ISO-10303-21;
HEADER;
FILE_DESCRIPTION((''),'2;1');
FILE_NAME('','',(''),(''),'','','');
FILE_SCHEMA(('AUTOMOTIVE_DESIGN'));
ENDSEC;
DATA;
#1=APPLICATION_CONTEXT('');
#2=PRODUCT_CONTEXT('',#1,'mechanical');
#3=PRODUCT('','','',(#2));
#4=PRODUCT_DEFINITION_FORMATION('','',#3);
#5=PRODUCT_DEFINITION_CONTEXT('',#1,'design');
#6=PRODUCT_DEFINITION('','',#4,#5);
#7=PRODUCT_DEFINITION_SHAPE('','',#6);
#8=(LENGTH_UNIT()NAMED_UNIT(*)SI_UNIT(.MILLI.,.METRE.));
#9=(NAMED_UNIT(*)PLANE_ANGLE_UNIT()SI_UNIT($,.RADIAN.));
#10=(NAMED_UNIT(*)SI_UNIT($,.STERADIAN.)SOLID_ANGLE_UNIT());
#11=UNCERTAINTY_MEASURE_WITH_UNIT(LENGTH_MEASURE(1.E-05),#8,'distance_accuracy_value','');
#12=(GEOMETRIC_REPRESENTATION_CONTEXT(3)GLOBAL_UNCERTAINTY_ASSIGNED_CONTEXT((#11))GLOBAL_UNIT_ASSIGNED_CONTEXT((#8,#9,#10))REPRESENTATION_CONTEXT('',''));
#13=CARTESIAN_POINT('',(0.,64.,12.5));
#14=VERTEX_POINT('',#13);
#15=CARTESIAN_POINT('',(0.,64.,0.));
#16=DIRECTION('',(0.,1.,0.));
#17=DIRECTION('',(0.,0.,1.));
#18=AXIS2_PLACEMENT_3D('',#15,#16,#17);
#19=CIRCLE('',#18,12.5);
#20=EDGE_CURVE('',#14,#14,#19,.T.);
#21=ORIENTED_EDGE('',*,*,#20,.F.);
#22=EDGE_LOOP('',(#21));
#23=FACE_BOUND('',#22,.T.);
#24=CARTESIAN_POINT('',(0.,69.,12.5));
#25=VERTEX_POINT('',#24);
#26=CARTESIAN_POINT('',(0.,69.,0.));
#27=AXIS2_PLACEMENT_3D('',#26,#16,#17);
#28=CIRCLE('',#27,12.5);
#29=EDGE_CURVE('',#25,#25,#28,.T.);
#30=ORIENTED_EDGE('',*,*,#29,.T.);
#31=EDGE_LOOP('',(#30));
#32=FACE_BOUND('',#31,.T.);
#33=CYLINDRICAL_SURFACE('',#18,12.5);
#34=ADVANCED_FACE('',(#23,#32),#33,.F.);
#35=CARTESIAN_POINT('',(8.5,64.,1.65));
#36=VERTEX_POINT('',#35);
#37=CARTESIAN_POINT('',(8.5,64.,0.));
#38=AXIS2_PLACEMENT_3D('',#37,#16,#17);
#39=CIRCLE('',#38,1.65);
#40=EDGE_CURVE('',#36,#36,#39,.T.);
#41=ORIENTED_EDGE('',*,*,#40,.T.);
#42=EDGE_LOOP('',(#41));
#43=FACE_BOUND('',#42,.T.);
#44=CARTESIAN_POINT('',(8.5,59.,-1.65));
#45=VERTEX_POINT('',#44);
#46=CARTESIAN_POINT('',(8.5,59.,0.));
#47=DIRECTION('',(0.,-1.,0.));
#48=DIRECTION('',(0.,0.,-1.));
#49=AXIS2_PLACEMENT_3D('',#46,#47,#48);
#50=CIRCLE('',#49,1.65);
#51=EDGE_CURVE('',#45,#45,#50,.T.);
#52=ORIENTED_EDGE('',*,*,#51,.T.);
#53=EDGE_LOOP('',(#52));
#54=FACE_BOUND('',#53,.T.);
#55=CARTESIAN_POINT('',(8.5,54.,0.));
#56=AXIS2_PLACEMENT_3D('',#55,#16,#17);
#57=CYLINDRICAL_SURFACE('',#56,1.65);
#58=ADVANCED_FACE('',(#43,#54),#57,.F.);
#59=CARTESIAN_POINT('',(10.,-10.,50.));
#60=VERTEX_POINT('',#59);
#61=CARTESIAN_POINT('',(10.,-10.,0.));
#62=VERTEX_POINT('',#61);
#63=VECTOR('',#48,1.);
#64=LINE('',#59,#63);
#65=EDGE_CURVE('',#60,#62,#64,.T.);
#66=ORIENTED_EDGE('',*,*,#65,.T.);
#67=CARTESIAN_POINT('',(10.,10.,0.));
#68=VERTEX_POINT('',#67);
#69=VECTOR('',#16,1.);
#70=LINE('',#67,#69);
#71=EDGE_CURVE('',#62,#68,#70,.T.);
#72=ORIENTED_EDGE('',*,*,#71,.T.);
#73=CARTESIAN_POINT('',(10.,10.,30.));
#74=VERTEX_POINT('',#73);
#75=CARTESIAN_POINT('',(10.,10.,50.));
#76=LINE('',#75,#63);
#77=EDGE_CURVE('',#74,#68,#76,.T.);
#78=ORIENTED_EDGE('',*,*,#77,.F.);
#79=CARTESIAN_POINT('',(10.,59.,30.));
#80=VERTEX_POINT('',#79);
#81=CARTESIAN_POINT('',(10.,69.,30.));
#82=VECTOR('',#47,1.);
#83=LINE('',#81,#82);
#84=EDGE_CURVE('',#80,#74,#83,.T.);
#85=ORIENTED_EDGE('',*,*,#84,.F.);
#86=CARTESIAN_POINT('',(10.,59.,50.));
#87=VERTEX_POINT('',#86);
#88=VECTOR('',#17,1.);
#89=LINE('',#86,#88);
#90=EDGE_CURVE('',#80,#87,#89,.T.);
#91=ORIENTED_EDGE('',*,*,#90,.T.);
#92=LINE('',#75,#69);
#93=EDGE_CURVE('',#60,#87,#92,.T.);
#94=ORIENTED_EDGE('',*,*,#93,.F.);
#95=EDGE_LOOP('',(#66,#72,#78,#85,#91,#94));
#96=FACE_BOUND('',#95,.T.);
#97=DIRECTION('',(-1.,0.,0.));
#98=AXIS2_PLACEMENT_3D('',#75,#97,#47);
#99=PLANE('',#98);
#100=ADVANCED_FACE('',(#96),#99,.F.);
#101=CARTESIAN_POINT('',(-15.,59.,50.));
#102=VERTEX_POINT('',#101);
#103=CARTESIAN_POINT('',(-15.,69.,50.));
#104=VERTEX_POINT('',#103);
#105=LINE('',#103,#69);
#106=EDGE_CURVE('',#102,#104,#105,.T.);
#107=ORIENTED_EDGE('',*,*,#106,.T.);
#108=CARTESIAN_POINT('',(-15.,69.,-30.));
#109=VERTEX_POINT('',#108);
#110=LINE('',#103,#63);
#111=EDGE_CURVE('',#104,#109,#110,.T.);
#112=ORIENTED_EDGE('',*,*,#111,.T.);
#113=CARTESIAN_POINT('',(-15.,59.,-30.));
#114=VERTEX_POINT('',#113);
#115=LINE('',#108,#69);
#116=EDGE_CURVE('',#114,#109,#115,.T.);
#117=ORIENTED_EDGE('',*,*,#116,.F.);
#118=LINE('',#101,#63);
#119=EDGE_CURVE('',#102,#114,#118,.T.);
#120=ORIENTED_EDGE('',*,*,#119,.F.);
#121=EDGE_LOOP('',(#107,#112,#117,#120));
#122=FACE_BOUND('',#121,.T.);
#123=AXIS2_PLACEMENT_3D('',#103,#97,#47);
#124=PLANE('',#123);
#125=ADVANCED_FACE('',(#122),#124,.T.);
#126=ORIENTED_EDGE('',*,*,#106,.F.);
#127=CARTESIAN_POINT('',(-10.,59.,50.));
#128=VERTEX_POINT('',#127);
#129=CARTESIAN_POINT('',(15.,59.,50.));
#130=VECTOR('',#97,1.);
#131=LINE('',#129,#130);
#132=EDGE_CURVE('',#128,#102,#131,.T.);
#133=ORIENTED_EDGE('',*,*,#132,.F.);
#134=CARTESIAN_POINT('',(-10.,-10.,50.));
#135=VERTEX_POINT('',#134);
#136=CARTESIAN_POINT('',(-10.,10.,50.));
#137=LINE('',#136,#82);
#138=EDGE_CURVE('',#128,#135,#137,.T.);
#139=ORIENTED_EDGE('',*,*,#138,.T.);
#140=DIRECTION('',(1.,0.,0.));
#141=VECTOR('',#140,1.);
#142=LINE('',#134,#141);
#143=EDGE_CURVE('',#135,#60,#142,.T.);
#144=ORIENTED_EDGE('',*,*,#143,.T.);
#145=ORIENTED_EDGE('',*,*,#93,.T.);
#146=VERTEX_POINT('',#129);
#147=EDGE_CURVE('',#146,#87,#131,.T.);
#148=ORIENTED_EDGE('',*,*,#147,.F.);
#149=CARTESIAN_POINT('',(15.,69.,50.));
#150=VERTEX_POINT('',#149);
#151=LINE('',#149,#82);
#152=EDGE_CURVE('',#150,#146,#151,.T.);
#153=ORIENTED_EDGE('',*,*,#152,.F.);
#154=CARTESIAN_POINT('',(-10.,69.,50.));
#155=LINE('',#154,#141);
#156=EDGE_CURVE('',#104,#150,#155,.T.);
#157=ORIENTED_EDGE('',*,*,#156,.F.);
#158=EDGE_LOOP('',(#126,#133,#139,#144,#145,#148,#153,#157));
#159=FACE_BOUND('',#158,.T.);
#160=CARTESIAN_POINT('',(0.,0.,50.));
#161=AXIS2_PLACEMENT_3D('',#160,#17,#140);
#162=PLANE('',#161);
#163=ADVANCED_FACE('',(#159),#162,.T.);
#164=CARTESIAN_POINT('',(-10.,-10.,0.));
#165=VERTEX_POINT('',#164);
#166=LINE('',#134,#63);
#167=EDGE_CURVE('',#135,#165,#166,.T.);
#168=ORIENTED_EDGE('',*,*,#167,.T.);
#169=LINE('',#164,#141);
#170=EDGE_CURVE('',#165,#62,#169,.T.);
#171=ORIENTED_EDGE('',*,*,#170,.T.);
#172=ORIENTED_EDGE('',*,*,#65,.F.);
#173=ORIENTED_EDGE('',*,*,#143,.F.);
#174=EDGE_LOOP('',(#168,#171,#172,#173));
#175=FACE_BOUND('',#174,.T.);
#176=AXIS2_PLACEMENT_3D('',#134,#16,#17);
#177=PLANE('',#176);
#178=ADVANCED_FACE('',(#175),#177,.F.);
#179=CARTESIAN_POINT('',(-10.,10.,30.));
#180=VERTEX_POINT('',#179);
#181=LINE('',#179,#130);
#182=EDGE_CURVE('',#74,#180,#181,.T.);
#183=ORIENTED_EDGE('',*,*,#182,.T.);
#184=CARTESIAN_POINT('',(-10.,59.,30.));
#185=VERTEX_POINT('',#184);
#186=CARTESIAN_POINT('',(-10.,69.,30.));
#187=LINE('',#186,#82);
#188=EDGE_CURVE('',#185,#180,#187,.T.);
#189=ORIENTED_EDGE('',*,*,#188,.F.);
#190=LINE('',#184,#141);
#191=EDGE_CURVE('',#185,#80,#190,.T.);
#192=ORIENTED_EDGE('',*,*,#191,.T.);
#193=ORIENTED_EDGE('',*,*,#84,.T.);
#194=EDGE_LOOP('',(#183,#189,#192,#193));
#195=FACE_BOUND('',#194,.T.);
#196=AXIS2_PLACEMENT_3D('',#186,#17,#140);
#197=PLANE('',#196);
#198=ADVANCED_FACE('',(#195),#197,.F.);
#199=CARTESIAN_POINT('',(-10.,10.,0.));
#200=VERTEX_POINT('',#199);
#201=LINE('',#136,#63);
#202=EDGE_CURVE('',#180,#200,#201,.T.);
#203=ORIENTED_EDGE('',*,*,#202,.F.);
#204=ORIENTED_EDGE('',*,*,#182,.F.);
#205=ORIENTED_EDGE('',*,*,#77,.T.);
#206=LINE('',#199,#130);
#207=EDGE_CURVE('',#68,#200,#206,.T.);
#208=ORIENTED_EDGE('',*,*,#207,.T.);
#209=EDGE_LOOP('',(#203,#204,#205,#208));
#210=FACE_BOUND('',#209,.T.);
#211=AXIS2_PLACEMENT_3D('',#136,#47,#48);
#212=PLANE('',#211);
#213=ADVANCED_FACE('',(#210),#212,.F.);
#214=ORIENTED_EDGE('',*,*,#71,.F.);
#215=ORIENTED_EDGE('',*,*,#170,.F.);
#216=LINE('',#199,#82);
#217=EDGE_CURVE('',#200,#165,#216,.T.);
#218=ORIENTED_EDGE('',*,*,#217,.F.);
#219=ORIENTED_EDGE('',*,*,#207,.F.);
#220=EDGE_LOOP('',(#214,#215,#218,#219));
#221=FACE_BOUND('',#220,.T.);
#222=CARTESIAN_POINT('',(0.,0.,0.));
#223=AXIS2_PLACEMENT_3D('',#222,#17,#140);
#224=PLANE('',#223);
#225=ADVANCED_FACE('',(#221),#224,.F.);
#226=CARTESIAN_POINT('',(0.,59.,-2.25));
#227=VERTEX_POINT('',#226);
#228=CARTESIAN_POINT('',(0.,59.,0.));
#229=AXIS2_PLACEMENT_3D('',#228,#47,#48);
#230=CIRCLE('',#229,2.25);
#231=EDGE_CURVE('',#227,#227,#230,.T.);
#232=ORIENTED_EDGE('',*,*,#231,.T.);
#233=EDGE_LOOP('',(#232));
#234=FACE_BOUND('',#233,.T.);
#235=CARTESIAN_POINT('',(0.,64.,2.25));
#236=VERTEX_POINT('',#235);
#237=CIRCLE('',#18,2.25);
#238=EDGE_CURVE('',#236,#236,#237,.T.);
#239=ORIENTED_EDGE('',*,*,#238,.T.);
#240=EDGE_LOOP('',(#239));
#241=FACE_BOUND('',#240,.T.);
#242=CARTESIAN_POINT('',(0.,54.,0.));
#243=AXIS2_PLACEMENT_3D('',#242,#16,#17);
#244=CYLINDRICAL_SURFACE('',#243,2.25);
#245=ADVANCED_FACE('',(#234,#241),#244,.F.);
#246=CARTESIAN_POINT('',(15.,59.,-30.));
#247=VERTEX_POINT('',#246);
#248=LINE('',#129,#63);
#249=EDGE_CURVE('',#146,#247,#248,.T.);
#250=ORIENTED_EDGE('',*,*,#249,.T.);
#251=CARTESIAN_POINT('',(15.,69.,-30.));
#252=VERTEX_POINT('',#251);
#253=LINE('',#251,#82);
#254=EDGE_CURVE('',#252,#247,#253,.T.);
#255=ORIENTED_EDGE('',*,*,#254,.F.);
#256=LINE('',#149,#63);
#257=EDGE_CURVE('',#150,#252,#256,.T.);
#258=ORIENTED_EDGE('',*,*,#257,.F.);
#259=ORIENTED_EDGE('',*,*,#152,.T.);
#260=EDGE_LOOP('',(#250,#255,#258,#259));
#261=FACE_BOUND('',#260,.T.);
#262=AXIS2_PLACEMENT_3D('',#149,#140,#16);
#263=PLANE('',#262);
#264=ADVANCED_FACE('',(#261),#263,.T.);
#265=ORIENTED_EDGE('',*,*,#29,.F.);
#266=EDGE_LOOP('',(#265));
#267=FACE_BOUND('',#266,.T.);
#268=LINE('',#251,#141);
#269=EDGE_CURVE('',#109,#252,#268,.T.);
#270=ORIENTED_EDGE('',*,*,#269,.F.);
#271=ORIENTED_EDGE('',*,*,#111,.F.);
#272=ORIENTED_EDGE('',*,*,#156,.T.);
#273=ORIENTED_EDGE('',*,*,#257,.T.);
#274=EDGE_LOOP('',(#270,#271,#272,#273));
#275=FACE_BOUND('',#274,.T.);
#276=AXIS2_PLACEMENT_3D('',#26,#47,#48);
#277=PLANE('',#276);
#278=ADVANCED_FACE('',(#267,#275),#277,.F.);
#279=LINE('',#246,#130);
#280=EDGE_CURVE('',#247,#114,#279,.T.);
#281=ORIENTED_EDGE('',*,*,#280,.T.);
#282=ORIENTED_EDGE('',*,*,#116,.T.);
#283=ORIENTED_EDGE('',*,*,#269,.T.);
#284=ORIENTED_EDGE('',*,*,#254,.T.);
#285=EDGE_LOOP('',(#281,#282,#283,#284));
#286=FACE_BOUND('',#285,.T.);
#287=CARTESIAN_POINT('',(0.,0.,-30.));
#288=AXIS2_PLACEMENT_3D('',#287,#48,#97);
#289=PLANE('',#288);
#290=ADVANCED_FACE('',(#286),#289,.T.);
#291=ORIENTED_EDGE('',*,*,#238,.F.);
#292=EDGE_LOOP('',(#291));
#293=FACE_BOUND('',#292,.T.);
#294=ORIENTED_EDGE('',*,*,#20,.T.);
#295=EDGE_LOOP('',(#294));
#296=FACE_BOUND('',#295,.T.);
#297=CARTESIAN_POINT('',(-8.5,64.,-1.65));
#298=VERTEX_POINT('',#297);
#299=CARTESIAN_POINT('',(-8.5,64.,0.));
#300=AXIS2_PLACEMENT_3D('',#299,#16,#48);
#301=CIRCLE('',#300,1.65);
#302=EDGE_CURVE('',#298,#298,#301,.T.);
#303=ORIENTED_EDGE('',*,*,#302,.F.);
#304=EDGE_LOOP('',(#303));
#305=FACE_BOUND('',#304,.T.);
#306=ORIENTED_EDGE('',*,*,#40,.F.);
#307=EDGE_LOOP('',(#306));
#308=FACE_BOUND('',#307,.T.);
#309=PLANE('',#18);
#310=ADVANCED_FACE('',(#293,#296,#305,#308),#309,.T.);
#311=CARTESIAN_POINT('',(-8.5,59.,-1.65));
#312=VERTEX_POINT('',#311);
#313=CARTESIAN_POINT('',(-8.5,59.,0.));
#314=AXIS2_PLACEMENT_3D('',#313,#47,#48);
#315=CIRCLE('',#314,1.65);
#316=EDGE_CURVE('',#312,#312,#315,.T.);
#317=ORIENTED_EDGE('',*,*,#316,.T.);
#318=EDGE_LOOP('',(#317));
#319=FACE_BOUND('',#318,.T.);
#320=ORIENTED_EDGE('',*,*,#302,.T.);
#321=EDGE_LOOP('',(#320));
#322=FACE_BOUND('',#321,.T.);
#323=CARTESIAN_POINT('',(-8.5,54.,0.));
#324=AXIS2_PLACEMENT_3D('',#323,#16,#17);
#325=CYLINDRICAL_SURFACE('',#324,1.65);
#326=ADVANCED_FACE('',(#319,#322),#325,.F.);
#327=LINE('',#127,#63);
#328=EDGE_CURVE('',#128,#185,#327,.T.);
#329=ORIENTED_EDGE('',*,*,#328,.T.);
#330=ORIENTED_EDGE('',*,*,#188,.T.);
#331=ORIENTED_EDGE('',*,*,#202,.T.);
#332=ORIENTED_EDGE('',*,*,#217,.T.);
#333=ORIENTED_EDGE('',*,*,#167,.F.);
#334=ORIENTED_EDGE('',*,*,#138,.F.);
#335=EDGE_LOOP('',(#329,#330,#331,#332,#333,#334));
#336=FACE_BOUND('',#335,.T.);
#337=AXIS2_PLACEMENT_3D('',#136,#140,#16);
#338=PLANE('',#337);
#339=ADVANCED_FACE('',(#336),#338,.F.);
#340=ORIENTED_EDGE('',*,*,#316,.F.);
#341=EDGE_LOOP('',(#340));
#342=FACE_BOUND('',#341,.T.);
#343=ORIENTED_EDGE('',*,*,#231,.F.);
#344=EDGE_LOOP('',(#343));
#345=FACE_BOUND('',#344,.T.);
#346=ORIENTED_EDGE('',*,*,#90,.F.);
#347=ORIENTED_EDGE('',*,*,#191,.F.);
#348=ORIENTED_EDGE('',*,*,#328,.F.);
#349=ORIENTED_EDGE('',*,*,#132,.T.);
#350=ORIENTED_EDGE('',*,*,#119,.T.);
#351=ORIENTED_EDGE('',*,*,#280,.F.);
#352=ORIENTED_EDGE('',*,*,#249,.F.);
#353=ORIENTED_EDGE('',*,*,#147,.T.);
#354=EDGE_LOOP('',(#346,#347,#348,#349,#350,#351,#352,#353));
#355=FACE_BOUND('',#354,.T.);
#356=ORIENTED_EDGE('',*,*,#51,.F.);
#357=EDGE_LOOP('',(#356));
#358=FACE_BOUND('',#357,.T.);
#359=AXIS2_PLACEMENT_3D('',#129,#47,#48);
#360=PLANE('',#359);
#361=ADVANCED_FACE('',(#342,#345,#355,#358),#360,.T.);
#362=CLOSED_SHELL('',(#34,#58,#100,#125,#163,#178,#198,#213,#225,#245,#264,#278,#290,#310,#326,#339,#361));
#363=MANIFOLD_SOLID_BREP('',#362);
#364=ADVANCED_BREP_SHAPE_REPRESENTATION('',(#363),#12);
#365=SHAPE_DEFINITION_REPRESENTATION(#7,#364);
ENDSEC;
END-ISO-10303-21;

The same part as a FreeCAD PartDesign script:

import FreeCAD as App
import Part
import Sketcher

doc = App.newDocument("Part")
body = doc.addObject("PartDesign::Body", "Body")

# Sketch on XY plane
sketch1 = body.newObject("Sketcher::SketchObject", "Sketch")
sketch1.AttachmentSupport = (doc.getObject("XY_Plane"), [""])
sketch1.MapMode = "FlatFace"
sketch1.addGeometry([
    Part.LineSegment(App.Vector(-10, 10, 0), App.Vector(-10, -10, 0)),
    Part.LineSegment(App.Vector(-10, -10, 0), App.Vector(10, -10, 0)),
    Part.LineSegment(App.Vector(10, -10, 0), App.Vector(10, 10, 0)),
    Part.LineSegment(App.Vector(10, 10, 0), App.Vector(-10, 10, 0)),
], False)
sketch1.addConstraint([
    Sketcher.Constraint("Coincident", 0, 2, 1, 1),
    Sketcher.Constraint("Coincident", 1, 2, 2, 1),
    Sketcher.Constraint("Coincident", 2, 2, 3, 1),
    Sketcher.Constraint("Coincident", 3, 2, 0, 1),
    Sketcher.Constraint("Vertical", 0),
    Sketcher.Constraint("Horizontal", 1),
    Sketcher.Constraint("Vertical", 2),
    Sketcher.Constraint("Horizontal", 3),
    Sketcher.Constraint("Symmetric", 0, 2, 2, 2, -1, 1),
    Sketcher.Constraint("Equal", 3, 0),
    Sketcher.Constraint("DistanceX", 1, 1, 1, 2, 20.0),
])
pad1 = body.newObject("PartDesign::Pad", "Pad")
pad1.Profile = sketch1
pad1.Length = 50

# Sketch on XZ plane
sketch2 = body.newObject("Sketcher::SketchObject", "Sketch001")
sketch2.AttachmentSupport = (doc.getObject("XZ_Plane"), [""])
sketch2.MapMode = "FlatFace"
sketch2.AttachmentOffset = App.Placement(App.Vector(0, 0, -10), App.Rotation())
sketch2.addGeometry([
    Part.LineSegment(App.Vector(-10, 30, 0), App.Vector(-10, 50, 0)),
    Part.LineSegment(App.Vector(-10, 50, 0), App.Vector(10, 50, 0)),
    Part.LineSegment(App.Vector(10, 50, 0), App.Vector(10, 30, 0)),
    Part.LineSegment(App.Vector(10, 30, 0), App.Vector(-10, 30, 0)),
], False)
sketch2.addConstraint([
    Sketcher.Constraint("Coincident", 0, 2, 1, 1),
    Sketcher.Constraint("Coincident", 1, 2, 2, 1),
    Sketcher.Constraint("Coincident", 2, 2, 3, 1),
    Sketcher.Constraint("Coincident", 3, 2, 0, 1),
    Sketcher.Constraint("Vertical", 0),
    Sketcher.Constraint("Horizontal", 1),
    Sketcher.Constraint("Vertical", 2),
    Sketcher.Constraint("Horizontal", 3),
    Sketcher.Constraint("Equal", 3, 0),
    Sketcher.Constraint("DistanceX", 1, 1, 1, 2, 20.0),
    Sketcher.Constraint("DistanceX", 0, 2, -1, 1, 10.0),
    Sketcher.Constraint("DistanceY", -1, 1, 0, 2, 50.0),
])
pad2 = body.newObject("PartDesign::Pad", "Pad001")
pad2.Profile = sketch2
pad2.Length = 59
pad2.Reversed = True

# Sketch on XY plane
sketch3 = body.newObject("Sketcher::SketchObject", "Sketch002")
sketch3.AttachmentSupport = (doc.getObject("XY_Plane"), [""])
sketch3.MapMode = "FlatFace"
sketch3.AttachmentOffset = App.Placement(App.Vector(0, 0, 30), App.Rotation())
sketch3.addGeometry([
    Part.LineSegment(App.Vector(15, 69, 0), App.Vector(15, 59, 0)),
    Part.LineSegment(App.Vector(15, 59, 0), App.Vector(-15, 59, 0)),
    Part.LineSegment(App.Vector(-15, 59, 0), App.Vector(-15, 69, 0)),
    Part.LineSegment(App.Vector(-15, 69, 0), App.Vector(15, 69, 0)),
], False)
sketch3.addConstraint([
    Sketcher.Constraint("Coincident", 0, 2, 1, 1),
    Sketcher.Constraint("Coincident", 1, 2, 2, 1),
    Sketcher.Constraint("Coincident", 2, 2, 3, 1),
    Sketcher.Constraint("Coincident", 3, 2, 0, 1),
    Sketcher.Constraint("Vertical", 0),
    Sketcher.Constraint("Horizontal", 1),
    Sketcher.Constraint("Vertical", 2),
    Sketcher.Constraint("Horizontal", 3),
    Sketcher.Constraint("DistanceX", 1, 2, 1, 1, 30.0),
    Sketcher.Constraint("DistanceY", 0, 2, 0, 1, 10.0),
    Sketcher.Constraint("DistanceX", -1, 1, 0, 2, 15.0),
    Sketcher.Constraint("DistanceY", -1, 1, 0, 2, 59.0),
])
pad3 = body.newObject("PartDesign::Pad", "Pad002")
pad3.Profile = sketch3
pad3.Type = "TwoLengths"
pad3.Length = 60
pad3.Length2 = 20
pad3.Reversed = True

# Sketch on XZ plane
sketch4 = body.newObject("Sketcher::SketchObject", "Sketch003")
sketch4.AttachmentSupport = (doc.getObject("XZ_Plane"), [""])
sketch4.MapMode = "FlatFace"
sketch4.AttachmentOffset = App.Placement(App.Vector(0, 0, -69), App.Rotation())
sketch4.addGeometry(Part.Circle(App.Vector(0, 0, 0), App.Vector(0, 0, 1), 12), False)
sketch4.addConstraint([
    Sketcher.Constraint("Coincident", 0, 3, -1, 1),
    Sketcher.Constraint("Diameter", 0, 25.0),
])
pocket1 = body.newObject("PartDesign::Pocket", "Pocket")
pocket1.Profile = sketch4
pocket1.Length = 5
pocket1.Reversed = True

# Sketch on XZ plane
sketch5 = body.newObject("Sketcher::SketchObject", "Sketch004")
sketch5.AttachmentSupport = (doc.getObject("XZ_Plane"), [""])
sketch5.MapMode = "FlatFace"
sketch5.AttachmentOffset = App.Placement(App.Vector(0, 0, -64), App.Rotation())
sketch5.addGeometry(Part.Circle(App.Vector(0, 0, 0), App.Vector(0, 0, 1), 2.2), False)
sketch5.addConstraint([
    Sketcher.Constraint("Coincident", 0, 3, -1, 1),
    Sketcher.Constraint("Diameter", 0, 4.5),
])
pocket2 = body.newObject("PartDesign::Pocket", "Pocket001")
pocket2.Profile = sketch5
pocket2.Length = 10
pocket2.Reversed = True

# Sketch on XZ plane
sketch6 = body.newObject("Sketcher::SketchObject", "Sketch005")
sketch6.AttachmentSupport = (doc.getObject("XZ_Plane"), [""])
sketch6.MapMode = "FlatFace"
sketch6.AttachmentOffset = App.Placement(App.Vector(0, 0, -64), App.Rotation())
sketch6.addGeometry([
    Part.Circle(App.Vector(8.5, 0, 0), App.Vector(0, 0, 1), 1.6),
    Part.Circle(App.Vector(-8.5, 0, 0), App.Vector(0, 0, 1), 1.6),
], False)
sketch6.addConstraint([
    Sketcher.Constraint("Equal", 0, 1),
    Sketcher.Constraint("Symmetric", 0, 3, 1, 3, -1, 1),
    Sketcher.Constraint("PointOnObject", 0, 3, -1),
    Sketcher.Constraint("Diameter", 0, 3.3),
    Sketcher.Constraint("DistanceX", 1, 3, 0, 3, 17.0),
])
pocket3 = body.newObject("PartDesign::Pocket", "Pocket002")
pocket3.Profile = sketch6
pocket3.Length = 10
pocket3.Reversed = True

doc.recompute()
